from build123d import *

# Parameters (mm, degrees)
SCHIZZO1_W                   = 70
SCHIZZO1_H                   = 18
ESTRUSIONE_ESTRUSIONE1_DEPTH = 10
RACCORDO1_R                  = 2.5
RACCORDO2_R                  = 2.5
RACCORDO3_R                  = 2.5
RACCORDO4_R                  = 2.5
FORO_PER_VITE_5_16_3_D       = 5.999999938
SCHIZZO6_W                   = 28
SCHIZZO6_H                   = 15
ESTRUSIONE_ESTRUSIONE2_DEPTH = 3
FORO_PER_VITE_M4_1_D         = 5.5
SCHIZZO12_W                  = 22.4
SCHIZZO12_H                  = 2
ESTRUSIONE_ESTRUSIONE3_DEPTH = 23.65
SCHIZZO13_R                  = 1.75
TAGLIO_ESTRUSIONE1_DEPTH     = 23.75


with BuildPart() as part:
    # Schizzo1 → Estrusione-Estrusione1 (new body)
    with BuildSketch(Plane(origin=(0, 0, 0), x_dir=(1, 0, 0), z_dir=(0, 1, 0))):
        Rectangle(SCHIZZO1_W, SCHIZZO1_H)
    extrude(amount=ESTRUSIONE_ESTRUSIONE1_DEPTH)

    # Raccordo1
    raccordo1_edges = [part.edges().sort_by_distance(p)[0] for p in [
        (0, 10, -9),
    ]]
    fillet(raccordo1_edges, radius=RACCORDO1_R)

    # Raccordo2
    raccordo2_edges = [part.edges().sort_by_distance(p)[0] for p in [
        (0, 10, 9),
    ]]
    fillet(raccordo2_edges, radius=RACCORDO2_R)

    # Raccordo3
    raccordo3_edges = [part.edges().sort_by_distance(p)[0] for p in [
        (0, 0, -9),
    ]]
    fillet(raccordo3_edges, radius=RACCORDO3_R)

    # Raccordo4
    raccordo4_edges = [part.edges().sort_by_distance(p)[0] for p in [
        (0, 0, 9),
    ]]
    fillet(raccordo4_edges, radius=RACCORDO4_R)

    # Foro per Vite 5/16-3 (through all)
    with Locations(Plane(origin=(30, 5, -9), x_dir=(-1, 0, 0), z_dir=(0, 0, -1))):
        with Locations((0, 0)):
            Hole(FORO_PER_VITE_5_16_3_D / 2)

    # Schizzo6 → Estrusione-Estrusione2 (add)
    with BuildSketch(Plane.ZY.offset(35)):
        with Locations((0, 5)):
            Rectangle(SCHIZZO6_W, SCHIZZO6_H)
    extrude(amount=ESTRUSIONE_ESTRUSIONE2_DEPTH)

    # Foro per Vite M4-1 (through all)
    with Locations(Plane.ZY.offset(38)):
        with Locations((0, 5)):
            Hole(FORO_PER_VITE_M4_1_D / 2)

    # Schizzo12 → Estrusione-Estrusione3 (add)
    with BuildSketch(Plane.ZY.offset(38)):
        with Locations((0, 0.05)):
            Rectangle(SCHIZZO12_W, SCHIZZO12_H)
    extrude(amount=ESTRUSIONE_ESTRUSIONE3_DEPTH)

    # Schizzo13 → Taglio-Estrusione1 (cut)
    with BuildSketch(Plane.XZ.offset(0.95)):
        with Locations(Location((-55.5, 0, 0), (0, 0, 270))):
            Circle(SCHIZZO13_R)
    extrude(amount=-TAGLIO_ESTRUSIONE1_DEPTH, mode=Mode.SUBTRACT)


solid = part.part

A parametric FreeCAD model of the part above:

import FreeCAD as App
import Part
import Sketcher

V = App.Vector


def edges_at(feature, points):
    """Names of the edges that pass closest to the given points."""
    edges = feature.Shape.Edges
    near = lambda p: min(range(len(edges)), key=lambda i: edges[i].distToShape(Part.Vertex(*p))[0])
    return sorted({f"Edge{near(p) + 1}" for p in points})

doc = App.newDocument("Part")
body = doc.addObject("PartDesign::Body", "Body")

# Sketch on XZ plane
sketch1 = body.newObject("Sketcher::SketchObject", "Sketch")
sketch1.AttachmentSupport = (doc.getObject("XZ_Plane"), [""])
sketch1.MapMode = "FlatFace"
sketch1.addGeometry([
    Part.LineSegment(V(-35, -9, 0), V(-35, 9, 0)),
    Part.LineSegment(V(-35, 9, 0), V(35, 9, 0)),
    Part.LineSegment(V(35, 9, 0), V(35, -9, 0)),
    Part.LineSegment(V(35, -9, 0), V(-35, -9, 0)),
], False)
sketch1.addConstraint([
    Sketcher.Constraint("Coincident", 0, 2, 1, 1),
    Sketcher.Constraint("Coincident", 1, 2, 2, 1),
    Sketcher.Constraint("Coincident", 2, 2, 3, 1),
    Sketcher.Constraint("Coincident", 3, 2, 0, 1),
    Sketcher.Constraint("Vertical", 0),
    Sketcher.Constraint("Horizontal", 1),
    Sketcher.Constraint("Vertical", 2),
    Sketcher.Constraint("Horizontal", 3),
    Sketcher.Constraint("Symmetric", 0, 2, 2, 2, -1, 1),
    Sketcher.Constraint("DistanceX", 1, 1, 1, 2, 70.0),
    Sketcher.Constraint("DistanceY", 0, 1, 0, 2, 18.0),
])
pad1 = body.newObject("PartDesign::Pad", "Pad")
pad1.Profile = sketch1
pad1.Length = 10
pad1.Reversed = True
doc.recompute()

fillet = body.newObject("PartDesign::Fillet", "Fillet")
fillet.Base = (pad1, edges_at(pad1, [(0, 10, -9)]))
fillet.Radius = 2.5
doc.recompute()

fillet2 = body.newObject("PartDesign::Fillet", "Fillet001")
fillet2.Base = (fillet, edges_at(fillet, [(0, 10, 9)]))
fillet2.Radius = 2.5
doc.recompute()

fillet3 = body.newObject("PartDesign::Fillet", "Fillet002")
fillet3.Base = (fillet2, edges_at(fillet2, [(0, 0, -9)]))
fillet3.Radius = 2.5
doc.recompute()

fillet4 = body.newObject("PartDesign::Fillet", "Fillet003")
fillet4.Base = (fillet3, edges_at(fillet3, [(0, 0, 9)]))
fillet4.Radius = 2.5

# Sketch on XY plane
sketch2 = body.newObject("Sketcher::SketchObject", "Sketch001")
sketch2.AttachmentSupport = (doc.getObject("XY_Plane"), [""])
sketch2.MapMode = "FlatFace"
sketch2.AttachmentOffset = App.Placement(V(0, 0, -9), App.Rotation())
sketch2.addGeometry(Part.Circle(V(30, 5, 0), V(0, 0, 1), 3), False)
sketch2.addConstraint([
    Sketcher.Constraint("Diameter", 0, 6.0),
    Sketcher.Constraint("DistanceX", -1, 1, 0, 3, 30.0),
    Sketcher.Constraint("DistanceY", -1, 1, 0, 3, 5.0),
])
doc.recompute()
hole = body.newObject("PartDesign::Hole", "Hole")
hole.Profile = sketch2
hole.ThreadType = "None"
hole.Diameter = 6
hole.DepthType = "ThroughAll"
hole.Reversed = True

# Sketch on YZ plane
sketch3 = body.newObject("Sketcher::SketchObject", "Sketch002")
sketch3.AttachmentSupport = (doc.getObject("YZ_Plane"), [""])
sketch3.MapMode = "FlatFace"
sketch3.AttachmentOffset = App.Placement(V(0, 0, -35), App.Rotation())
sketch3.addGeometry([
    Part.LineSegment(V(12, -14, 0), V(-2, -14, 0)),
    Part.LineSegment(V(-2, -14, 0), V(-2, 14, 0)),
    Part.LineSegment(V(-2, 14, 0), V(12, 14, 0)),
    Part.LineSegment(V(12, 14, 0), V(12, -14, 0)),
], False)
sketch3.addConstraint([
    Sketcher.Constraint("Coincident", 0, 2, 1, 1),
    Sketcher.Constraint("Coincident", 1, 2, 2, 1),
    Sketcher.Constraint("Coincident", 2, 2, 3, 1),
    Sketcher.Constraint("Coincident", 3, 2, 0, 1),
    Sketcher.Constraint("Horizontal", 0),
    Sketcher.Constraint("Vertical", 1),
    Sketcher.Constraint("Horizontal", 2),
    Sketcher.Constraint("Vertical", 3),
    Sketcher.Constraint("DistanceX", 0, 2, 0, 1, 15.0),
    Sketcher.Constraint("DistanceY", 1, 1, 1, 2, 28.0),
    Sketcher.Constraint("DistanceY", 0, 2, -1, 1, 14.0),
    Sketcher.Constraint("DistanceX", 0, 2, -1, 1, 2.5),
])
pad2 = body.newObject("PartDesign::Pad", "Pad001")
pad2.Profile = sketch3
pad2.Length = 3
pad2.Reversed = True

# Sketch on YZ plane
sketch4 = body.newObject("Sketcher::SketchObject", "Sketch003")
sketch4.AttachmentSupport = (doc.getObject("YZ_Plane"), [""])
sketch4.MapMode = "FlatFace"
sketch4.AttachmentOffset = App.Placement(V(0, 0, -38), App.Rotation())
sketch4.addGeometry(Part.Circle(V(5, 0, 0), V(0, 0, 1), 2.8), False)
sketch4.addConstraint([
    Sketcher.Constraint("PointOnObject", 0, 3, -1),
    Sketcher.Constraint("Diameter", 0, 5.5),
    Sketcher.Constraint("DistanceX", -1, 1, 0, 3, 5.0),
])
doc.recompute()
hole2 = body.newObject("PartDesign::Hole", "Hole001")
hole2.Profile = sketch4
hole2.ThreadType = "None"
hole2.Diameter = 5.5
hole2.DepthType = "ThroughAll"
hole2.Reversed = True

# Sketch on YZ plane
sketch5 = body.newObject("Sketcher::SketchObject", "Sketch004")
sketch5.AttachmentSupport = (doc.getObject("YZ_Plane"), [""])
sketch5.MapMode = "FlatFace"
sketch5.AttachmentOffset = App.Placement(V(0, 0, -38), App.Rotation())
sketch5.addGeometry([
    Part.LineSegment(V(1.1, -11.2, 0), V(-0.9, -11.2, 0)),
    Part.LineSegment(V(-0.9, -11.2, 0), V(-0.9, 11.2, 0)),
    Part.LineSegment(V(-0.9, 11.2, 0), V(1.1, 11.2, 0)),
    Part.LineSegment(V(1.1, 11.2, 0), V(1.1, -11.2, 0)),
], False)
sketch5.addConstraint([
    Sketcher.Constraint("Coincident", 0, 2, 1, 1),
    Sketcher.Constraint("Coincident", 1, 2, 2, 1),
    Sketcher.Constraint("Coincident", 2, 2, 3, 1),
    Sketcher.Constraint("Coincident", 3, 2, 0, 1),
    Sketcher.Constraint("Horizontal", 0),
    Sketcher.Constraint("Vertical", 1),
    Sketcher.Constraint("Horizontal", 2),
    Sketcher.Constraint("Vertical", 3),
    Sketcher.Constraint("DistanceX", 0, 2, 0, 1, 2.0),
    Sketcher.Constraint("DistanceY", 1, 1, 1, 2, 22.4),
    Sketcher.Constraint("DistanceY", 0, 2, -1, 1, 11.2),
    Sketcher.Constraint("DistanceX", 0, 2, -1, 1, 0.95),
])
pad3 = body.newObject("PartDesign::Pad", "Pad002")
pad3.Profile = sketch5
pad3.Length = 23.65
pad3.Reversed = True

# Sketch on XZ plane
sketch6 = body.newObject("Sketcher::SketchObject", "Sketch005")
sketch6.AttachmentSupport = (doc.getObject("XZ_Plane"), [""])
sketch6.MapMode = "FlatFace"
sketch6.AttachmentOffset = App.Placement(V(0, 0, 0.95), App.Rotation())
sketch6.addGeometry(Part.Circle(V(-55.5, 0, 0), V(0, 0, 1), 1.8), False)
sketch6.addConstraint([
    Sketcher.Constraint("PointOnObject", 0, 3, -1),
    Sketcher.Constraint("Diameter", 0, 3.5),
    Sketcher.Constraint("DistanceX", 0, 3, -1, 1, 55.5),
])
pocket1 = body.newObject("PartDesign::Pocket", "Pocket")
pocket1.Profile = sketch6
pocket1.Length = 23.75

doc.recompute()
